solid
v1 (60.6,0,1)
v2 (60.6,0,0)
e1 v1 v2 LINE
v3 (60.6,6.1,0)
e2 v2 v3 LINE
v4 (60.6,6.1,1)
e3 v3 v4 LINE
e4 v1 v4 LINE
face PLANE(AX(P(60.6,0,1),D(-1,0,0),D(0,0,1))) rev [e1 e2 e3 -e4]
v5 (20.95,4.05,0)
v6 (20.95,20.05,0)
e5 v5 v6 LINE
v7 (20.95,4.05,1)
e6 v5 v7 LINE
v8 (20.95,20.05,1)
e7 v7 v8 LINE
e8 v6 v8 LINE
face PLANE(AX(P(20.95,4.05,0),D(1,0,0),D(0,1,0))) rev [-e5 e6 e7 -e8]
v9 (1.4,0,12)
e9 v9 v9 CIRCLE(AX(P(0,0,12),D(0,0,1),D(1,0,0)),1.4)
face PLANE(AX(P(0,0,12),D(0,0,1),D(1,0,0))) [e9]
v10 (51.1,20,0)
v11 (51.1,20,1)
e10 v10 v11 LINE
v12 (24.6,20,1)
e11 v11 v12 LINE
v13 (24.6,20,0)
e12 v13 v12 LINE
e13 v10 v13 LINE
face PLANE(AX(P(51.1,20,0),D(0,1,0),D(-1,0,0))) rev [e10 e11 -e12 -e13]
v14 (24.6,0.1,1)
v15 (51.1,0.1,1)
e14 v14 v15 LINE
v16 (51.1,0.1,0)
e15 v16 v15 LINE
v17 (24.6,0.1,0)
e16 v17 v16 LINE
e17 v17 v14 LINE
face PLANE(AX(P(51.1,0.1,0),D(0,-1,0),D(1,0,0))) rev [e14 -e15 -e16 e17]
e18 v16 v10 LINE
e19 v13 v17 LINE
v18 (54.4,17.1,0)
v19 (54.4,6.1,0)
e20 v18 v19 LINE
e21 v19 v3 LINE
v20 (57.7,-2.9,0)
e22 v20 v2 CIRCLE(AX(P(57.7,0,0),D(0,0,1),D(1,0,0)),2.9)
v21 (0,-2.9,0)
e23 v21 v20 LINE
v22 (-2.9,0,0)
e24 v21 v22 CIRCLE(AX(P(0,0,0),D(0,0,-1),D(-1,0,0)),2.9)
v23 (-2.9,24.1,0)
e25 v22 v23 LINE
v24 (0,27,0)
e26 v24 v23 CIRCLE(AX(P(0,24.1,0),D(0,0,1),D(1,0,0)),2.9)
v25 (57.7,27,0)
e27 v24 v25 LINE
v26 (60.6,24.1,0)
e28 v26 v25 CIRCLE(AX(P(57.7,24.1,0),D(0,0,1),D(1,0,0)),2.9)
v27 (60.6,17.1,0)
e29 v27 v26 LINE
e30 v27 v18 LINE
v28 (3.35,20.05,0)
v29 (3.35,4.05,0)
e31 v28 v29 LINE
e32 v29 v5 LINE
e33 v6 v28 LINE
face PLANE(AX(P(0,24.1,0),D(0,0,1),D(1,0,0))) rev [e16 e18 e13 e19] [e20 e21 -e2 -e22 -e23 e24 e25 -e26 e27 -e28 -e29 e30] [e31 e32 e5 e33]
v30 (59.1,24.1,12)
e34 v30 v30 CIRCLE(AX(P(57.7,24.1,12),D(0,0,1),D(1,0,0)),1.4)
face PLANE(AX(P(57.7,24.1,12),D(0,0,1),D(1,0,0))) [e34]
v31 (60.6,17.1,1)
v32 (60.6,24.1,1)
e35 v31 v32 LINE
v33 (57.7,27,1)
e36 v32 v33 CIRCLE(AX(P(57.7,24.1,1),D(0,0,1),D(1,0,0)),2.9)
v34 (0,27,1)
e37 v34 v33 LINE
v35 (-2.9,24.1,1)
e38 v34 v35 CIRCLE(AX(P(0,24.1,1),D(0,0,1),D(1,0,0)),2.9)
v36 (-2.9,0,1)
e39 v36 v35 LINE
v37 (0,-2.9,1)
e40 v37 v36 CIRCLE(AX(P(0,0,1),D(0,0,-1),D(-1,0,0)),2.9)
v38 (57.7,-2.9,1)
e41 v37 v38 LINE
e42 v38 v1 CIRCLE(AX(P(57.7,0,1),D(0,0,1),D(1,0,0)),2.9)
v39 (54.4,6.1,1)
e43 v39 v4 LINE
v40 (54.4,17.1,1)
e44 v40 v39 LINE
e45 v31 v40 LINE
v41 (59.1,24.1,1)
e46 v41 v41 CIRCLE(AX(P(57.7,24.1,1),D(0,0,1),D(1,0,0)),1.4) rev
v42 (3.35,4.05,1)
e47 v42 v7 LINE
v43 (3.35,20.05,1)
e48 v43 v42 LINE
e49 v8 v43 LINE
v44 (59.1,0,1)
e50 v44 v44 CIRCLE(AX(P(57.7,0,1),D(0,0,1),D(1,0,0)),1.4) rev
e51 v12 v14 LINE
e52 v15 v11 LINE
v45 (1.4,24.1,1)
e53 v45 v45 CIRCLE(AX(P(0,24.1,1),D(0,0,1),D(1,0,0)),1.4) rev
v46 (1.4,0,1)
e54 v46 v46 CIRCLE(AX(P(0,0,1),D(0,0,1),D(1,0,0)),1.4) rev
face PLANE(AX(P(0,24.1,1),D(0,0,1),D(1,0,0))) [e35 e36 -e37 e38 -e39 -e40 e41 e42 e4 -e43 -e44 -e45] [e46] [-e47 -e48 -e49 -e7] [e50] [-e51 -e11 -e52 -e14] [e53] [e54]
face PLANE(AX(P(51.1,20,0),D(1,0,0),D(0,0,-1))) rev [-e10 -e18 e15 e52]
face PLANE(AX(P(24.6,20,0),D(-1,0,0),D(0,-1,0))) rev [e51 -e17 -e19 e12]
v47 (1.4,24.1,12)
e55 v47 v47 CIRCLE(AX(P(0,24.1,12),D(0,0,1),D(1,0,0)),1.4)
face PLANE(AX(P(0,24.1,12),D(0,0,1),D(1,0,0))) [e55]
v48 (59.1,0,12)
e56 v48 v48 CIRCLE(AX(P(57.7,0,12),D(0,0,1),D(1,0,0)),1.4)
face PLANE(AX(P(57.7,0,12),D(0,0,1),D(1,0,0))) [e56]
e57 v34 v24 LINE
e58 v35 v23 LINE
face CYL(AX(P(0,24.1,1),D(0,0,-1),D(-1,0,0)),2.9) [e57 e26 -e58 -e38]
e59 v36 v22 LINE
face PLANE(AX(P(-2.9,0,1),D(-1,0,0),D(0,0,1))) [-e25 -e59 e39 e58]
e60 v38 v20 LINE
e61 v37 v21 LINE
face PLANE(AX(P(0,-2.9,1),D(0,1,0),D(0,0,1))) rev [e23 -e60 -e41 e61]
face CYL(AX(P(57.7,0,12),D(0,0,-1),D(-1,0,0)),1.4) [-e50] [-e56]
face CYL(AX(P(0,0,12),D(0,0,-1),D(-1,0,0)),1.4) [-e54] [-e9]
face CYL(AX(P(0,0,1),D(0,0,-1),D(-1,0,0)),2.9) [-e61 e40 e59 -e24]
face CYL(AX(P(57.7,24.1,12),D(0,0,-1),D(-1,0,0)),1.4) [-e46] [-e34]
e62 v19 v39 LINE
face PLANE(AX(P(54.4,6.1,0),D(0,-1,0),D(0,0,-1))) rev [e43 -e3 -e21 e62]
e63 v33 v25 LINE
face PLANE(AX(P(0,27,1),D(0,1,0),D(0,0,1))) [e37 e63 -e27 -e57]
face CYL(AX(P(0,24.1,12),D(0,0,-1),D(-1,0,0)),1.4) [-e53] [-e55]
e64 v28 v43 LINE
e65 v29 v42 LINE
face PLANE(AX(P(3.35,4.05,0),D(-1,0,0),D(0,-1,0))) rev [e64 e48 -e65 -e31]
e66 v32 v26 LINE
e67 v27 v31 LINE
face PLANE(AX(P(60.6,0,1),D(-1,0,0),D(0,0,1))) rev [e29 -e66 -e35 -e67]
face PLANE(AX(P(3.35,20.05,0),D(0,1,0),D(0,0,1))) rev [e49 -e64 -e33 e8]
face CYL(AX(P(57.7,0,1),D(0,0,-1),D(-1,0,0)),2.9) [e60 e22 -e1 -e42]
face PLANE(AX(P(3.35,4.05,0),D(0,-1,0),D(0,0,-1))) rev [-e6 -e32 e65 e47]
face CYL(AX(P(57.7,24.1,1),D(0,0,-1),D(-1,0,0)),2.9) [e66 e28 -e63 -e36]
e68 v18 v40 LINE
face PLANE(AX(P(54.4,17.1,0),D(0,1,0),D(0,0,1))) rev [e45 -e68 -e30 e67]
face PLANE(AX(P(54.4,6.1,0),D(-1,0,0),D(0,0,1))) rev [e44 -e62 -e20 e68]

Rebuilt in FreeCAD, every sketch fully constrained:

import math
import FreeCAD as App
import Part
import Sketcher

V = App.Vector


def add_polygon(sketch, points):
    """Adds a closed chain of lines whose ends are joined by coincident constraints."""
    first, n = sketch.GeometryCount, len(points)
    for a, b in zip(points, points[1:] + points[:1]):
        sketch.addGeometry(Part.LineSegment(App.Vector(*a, 0), App.Vector(*b, 0)), False)
    for i in range(n):
        sketch.addConstraint(Sketcher.Constraint("Coincident", first + i, 2, first + (i + 1) % n, 1))

doc = App.newDocument("Part")
body = doc.addObject("PartDesign::Body", "Body")

# Sketch on XY plane
sketch1 = doc.addObject("Sketcher::SketchObject", "Sketch")
body.addObject(sketch1)
sketch1.AttachmentSupport = (doc.XY_Plane, [""])
sketch1.MapMode = "FlatFace"
sketch1.addGeometry(Part.LineSegment(V(0, -2.9, 0), V(57.7, -2.9, 0)), False)
sketch1.addGeometry(Part.ArcOfCircle(Part.Circle(V(57.7, 0, 0), V(0, 0, 1), 2.9), math.radians(-90), math.radians(0)), False)
sketch1.addGeometry(Part.LineSegment(V(60.6, 0, 0), V(60.6, 24.1, 0)), False)
sketch1.addGeometry(Part.ArcOfCircle(Part.Circle(V(57.7, 24.1, 0), V(0, 0, 1), 2.9), math.radians(0), math.radians(90)), False)
sketch1.addGeometry(Part.LineSegment(V(57.7, 27, 0), V(0, 27, 0)), False)
sketch1.addGeometry(Part.ArcOfCircle(Part.Circle(V(0, 24.1, 0), V(0, 0, 1), 2.9), math.radians(90), math.radians(180)), False)
sketch1.addGeometry(Part.LineSegment(V(-2.9, 24.1, 0), V(-2.9, 0, 0)), False)
sketch1.addGeometry(Part.ArcOfCircle(Part.Circle(V(0, 0, 0), V(0, 0, 1), 2.9), math.radians(-180), math.radians(-90)), False)
sketch1.addConstraint(Sketcher.Constraint("Tangent", 0, 2, 1, 1))
sketch1.addConstraint(Sketcher.Constraint("Tangent", 1, 2, 2, 1))
sketch1.addConstraint(Sketcher.Constraint("Tangent", 2, 2, 3, 1))
sketch1.addConstraint(Sketcher.Constraint("Tangent", 3, 2, 4, 1))
sketch1.addConstraint(Sketcher.Constraint("Tangent", 4, 2, 5, 1))
sketch1.addConstraint(Sketcher.Constraint("Tangent", 5, 2, 6, 1))
sketch1.addConstraint(Sketcher.Constraint("Tangent", 6, 2, 7, 1))
sketch1.addConstraint(Sketcher.Constraint("Tangent", 7, 2, 0, 1))
sketch1.addConstraint(Sketcher.Constraint("Horizontal", 0))
sketch1.addConstraint(Sketcher.Constraint("Vertical", 2))
sketch1.addConstraint(Sketcher.Constraint("Horizontal", 4))
sketch1.addConstraint(Sketcher.Constraint("Vertical", 6))
sketch1.addConstraint(Sketcher.Constraint("Coincident", 7, 3, -1, 1))
sketch1.addConstraint(Sketcher.Constraint("Equal", 1, 3))
sketch1.addConstraint(Sketcher.Constraint("Equal", 3, 5))
sketch1.addConstraint(Sketcher.Constraint("Equal", 5, 7))
sketch1.addConstraint(Sketcher.Constraint("Radius", 1, 2.9))
sketch1.addConstraint(Sketcher.Constraint("DistanceX", 0, 1, 0, 2, 57.7))
sketch1.addConstraint(Sketcher.Constraint("DistanceY", 2, 1, 2, 2, 24.1))
pad1 = doc.addObject("PartDesign::Pad", "Pad")
body.addObject(pad1)
pad1.Profile = sketch1
pad1.Length = 1

# Sketch on XY plane
sketch2 = doc.addObject("Sketcher::SketchObject", "Sketch001")
body.addObject(sketch2)
sketch2.AttachmentSupport = (doc.XY_Plane, [""])
sketch2.MapMode = "FlatFace"
sketch2.addGeometry(Part.Circle(V(0, 24.1, 0), V(0, 0, 1), 1.4), False)
sketch2.addGeometry(Part.Circle(V(0, 0, 0), V(0, 0, 1), 1.4), False)
sketch2.addGeometry(Part.Circle(V(57.7, 0, 0), V(0, 0, 1), 1.4), False)
sketch2.addGeometry(Part.Circle(V(57.7, 24.1, 0), V(0, 0, 1), 1.4), False)
sketch2.addConstraint(Sketcher.Constraint("Coincident", 1, 3, -1, 1))
sketch2.addConstraint(Sketcher.Constraint("Equal", 0, 1))
sketch2.addConstraint(Sketcher.Constraint("Equal", 1, 2))
sketch2.addConstraint(Sketcher.Constraint("Equal", 2, 3))
sketch2.addConstraint(Sketcher.Constraint("PointOnObject", 0, 3, -2))
sketch2.addConstraint(Sketcher.Constraint("PointOnObject", 2, 3, -1))
sketch2.addConstraint(Sketcher.Constraint("Horizontal", 0, 3, 3, 3))
sketch2.addConstraint(Sketcher.Constraint("Vertical", 2, 3, 3, 3))
sketch2.addConstraint(Sketcher.Constraint("Diameter", 0, 2.8))
sketch2.addConstraint(Sketcher.Constraint("DistanceY", -1, 1, 0, 3, 24.1))
sketch2.addConstraint(Sketcher.Constraint("DistanceX", -1, 1, 2, 3, 57.7))
pad2 = doc.addObject("PartDesign::Pad", "Pad001")
body.addObject(pad2)
pad2.Profile = sketch2
pad2.Length = 12

# Sketch on XY plane
sketch3 = doc.addObject("Sketcher::SketchObject", "Sketch002")
body.addObject(sketch3)
sketch3.AttachmentSupport = (doc.XY_Plane, [""])
sketch3.MapMode = "FlatFace"
sketch3.AttachmentOffset = App.Placement(V(0, 0, 1), App.Rotation())
add_polygon(sketch3, [(3.35, 20.05), (3.35, 4.05), (20.95, 4.05), (20.95, 20.05)])  # lines 0-3
add_polygon(sketch3, [(54.4, 17.1), (54.4, 6.1), (60.6, 6.1), (60.6, 17.1)])  # lines 4-7
add_polygon(sketch3, [(24.6, 20), (24.6, 0.1), (51.1, 0.1), (51.1, 20)])  # lines 8-11
sketch3.addConstraint(Sketcher.Constraint("Vertical", 0))
sketch3.addConstraint(Sketcher.Constraint("Horizontal", 1))
sketch3.addConstraint(Sketcher.Constraint("Vertical", 2))
sketch3.addConstraint(Sketcher.Constraint("Horizontal", 3))
sketch3.addConstraint(Sketcher.Constraint("Vertical", 4))
sketch3.addConstraint(Sketcher.Constraint("Horizontal", 5))
sketch3.addConstraint(Sketcher.Constraint("Vertical", 6))
sketch3.addConstraint(Sketcher.Constraint("Horizontal", 7))
sketch3.addConstraint(Sketcher.Constraint("Vertical", 8))
sketch3.addConstraint(Sketcher.Constraint("Horizontal", 9))
sketch3.addConstraint(Sketcher.Constraint("Vertical", 10))
sketch3.addConstraint(Sketcher.Constraint("Horizontal", 11))
sketch3.addConstraint(Sketcher.Constraint("DistanceY", 0, 2, 0, 1, 16.0))
sketch3.addConstraint(Sketcher.Constraint("DistanceY", 4, 2, 4, 1, 11.0))
sketch3.addConstraint(Sketcher.Constraint("DistanceX", 1, 1, 1, 2, 17.6))
sketch3.addConstraint(Sketcher.Constraint("DistanceX", 5, 1, 5, 2, 6.2))
sketch3.addConstraint(Sketcher.Constraint("DistanceX", 9, 1, 9, 2, 26.5))
sketch3.addConstraint(Sketcher.Constraint("DistanceY", 8, 2, 8, 1, 19.9))
sketch3.addConstraint(Sketcher.Constraint("DistanceY", -1, 1, 10, 2, 20.0))
sketch3.addConstraint(Sketcher.Constraint("DistanceY", 8, 2, 4, 2, 6.0))
sketch3.addConstraint(Sketcher.Constraint("DistanceX", -1, 1, 4, 2, 54.4))
sketch3.addConstraint(Sketcher.Constraint("DistanceX", -1, 1, 8, 2, 24.6))
sketch3.addConstraint(Sketcher.Constraint("DistanceX", -1, 1, 0, 2, 3.35))
sketch3.addConstraint(Sketcher.Constraint("DistanceY", -1, 1, 0, 2, 4.05))
pocket1 = doc.addObject("PartDesign::Pocket", "Pocket")
body.addObject(pocket1)
pocket1.Profile = sketch3
pocket1.Type = "ThroughAll"

doc.recompute()
